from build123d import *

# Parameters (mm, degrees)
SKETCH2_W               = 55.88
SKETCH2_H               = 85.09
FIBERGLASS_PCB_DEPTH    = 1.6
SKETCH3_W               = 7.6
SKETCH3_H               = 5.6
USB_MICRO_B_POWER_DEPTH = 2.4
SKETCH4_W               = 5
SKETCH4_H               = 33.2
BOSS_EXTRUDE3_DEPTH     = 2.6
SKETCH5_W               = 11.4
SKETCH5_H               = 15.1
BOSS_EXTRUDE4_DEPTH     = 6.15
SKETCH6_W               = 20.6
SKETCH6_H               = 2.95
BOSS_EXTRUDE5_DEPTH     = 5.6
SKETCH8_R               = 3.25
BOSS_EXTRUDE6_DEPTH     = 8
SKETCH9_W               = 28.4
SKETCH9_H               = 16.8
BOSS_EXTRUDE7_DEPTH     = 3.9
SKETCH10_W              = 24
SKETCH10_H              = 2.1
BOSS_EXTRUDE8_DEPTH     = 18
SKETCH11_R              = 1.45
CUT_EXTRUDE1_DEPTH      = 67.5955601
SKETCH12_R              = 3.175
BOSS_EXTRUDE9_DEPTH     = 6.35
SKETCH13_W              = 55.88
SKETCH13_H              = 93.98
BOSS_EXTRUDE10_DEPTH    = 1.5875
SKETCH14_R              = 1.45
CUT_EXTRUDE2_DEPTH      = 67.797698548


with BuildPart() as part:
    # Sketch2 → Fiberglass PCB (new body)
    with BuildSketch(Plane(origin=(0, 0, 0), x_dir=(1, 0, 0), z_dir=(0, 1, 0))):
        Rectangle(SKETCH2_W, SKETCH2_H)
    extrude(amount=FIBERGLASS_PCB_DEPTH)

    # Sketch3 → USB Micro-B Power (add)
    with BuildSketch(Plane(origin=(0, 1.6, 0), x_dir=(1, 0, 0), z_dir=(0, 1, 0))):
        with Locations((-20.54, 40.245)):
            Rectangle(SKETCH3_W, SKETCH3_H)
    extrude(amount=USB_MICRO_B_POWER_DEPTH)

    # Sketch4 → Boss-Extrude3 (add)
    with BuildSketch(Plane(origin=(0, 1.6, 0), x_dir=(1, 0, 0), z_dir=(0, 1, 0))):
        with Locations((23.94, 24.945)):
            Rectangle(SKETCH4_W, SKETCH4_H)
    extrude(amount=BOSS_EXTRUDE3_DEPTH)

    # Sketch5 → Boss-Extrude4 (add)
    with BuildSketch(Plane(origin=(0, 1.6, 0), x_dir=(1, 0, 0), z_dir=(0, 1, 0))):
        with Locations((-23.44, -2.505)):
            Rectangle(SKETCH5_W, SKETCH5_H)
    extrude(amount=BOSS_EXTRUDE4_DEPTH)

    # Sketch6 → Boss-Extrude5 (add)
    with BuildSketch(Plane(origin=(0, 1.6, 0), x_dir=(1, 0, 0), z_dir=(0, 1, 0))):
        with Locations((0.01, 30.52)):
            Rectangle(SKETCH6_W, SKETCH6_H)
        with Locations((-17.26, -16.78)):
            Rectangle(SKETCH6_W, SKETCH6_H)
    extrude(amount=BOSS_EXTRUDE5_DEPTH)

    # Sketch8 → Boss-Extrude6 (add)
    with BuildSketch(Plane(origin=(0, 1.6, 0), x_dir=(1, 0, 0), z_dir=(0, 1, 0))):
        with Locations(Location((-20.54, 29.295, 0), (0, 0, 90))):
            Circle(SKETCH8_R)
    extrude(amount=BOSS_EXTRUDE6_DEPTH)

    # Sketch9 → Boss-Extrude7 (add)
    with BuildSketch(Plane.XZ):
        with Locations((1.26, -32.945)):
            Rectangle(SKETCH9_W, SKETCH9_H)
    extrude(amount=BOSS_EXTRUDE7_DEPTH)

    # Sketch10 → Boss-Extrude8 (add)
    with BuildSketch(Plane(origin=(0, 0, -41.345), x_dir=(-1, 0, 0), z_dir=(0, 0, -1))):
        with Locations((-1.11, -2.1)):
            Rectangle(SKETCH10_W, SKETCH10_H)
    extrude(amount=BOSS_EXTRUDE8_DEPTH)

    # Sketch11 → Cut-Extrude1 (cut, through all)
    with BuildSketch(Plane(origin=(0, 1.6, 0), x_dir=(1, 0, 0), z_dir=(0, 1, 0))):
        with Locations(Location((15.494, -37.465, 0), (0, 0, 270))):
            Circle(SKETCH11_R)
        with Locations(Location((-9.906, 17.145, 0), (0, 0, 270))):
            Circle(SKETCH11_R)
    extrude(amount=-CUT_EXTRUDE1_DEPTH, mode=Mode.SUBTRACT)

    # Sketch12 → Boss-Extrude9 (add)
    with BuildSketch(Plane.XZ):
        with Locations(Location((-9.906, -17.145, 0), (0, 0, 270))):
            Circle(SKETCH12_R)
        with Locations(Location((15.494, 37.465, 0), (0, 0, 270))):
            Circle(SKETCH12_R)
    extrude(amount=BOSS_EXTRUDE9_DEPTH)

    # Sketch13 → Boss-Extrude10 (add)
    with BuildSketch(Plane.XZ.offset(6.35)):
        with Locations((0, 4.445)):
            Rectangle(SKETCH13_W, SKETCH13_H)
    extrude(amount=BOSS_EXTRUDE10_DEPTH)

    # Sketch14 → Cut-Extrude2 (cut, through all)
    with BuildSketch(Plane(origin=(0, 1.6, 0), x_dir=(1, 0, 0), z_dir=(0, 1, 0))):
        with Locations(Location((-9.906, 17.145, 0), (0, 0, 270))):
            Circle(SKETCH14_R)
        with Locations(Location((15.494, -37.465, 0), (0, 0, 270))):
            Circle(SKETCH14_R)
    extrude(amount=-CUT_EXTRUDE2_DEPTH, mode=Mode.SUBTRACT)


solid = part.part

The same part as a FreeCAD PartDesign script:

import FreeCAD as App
import Part
import Sketcher

V = App.Vector

doc = App.newDocument("Part")
body = doc.addObject("PartDesign::Body", "Body")

# Sketch on XZ plane
sketch1 = body.newObject("Sketcher::SketchObject", "Sketch")
sketch1.AttachmentSupport = (doc.getObject("XZ_Plane"), [""])
sketch1.MapMode = "FlatFace"
sketch1.addGeometry([
    Part.LineSegment(V(-28, -43, 0), V(-28, 43, 0)),
    Part.LineSegment(V(-28, 43, 0), V(28, 43, 0)),
    Part.LineSegment(V(28, 43, 0), V(28, -43, 0)),
    Part.LineSegment(V(28, -43, 0), V(-28, -43, 0)),
], False)
sketch1.addConstraint([
    Sketcher.Constraint("Coincident", 0, 2, 1, 1),
    Sketcher.Constraint("Coincident", 1, 2, 2, 1),
    Sketcher.Constraint("Coincident", 2, 2, 3, 1),
    Sketcher.Constraint("Coincident", 3, 2, 0, 1),
    Sketcher.Constraint("Vertical", 0),
    Sketcher.Constraint("Horizontal", 1),
    Sketcher.Constraint("Vertical", 2),
    Sketcher.Constraint("Horizontal", 3),
    Sketcher.Constraint("Symmetric", 0, 2, 2, 2, -1, 1),
    Sketcher.Constraint("DistanceX", 1, 1, 1, 2, 55.88),
    Sketcher.Constraint("DistanceY", 0, 1, 0, 2, 85.09),
])
pad1 = body.newObject("PartDesign::Pad", "Pad")
pad1.Profile = sketch1
pad1.Length = 1.6
pad1.Reversed = True

# Sketch on XZ plane
sketch2 = body.newObject("Sketcher::SketchObject", "Sketch001")
sketch2.AttachmentSupport = (doc.getObject("XZ_Plane"), [""])
sketch2.MapMode = "FlatFace"
sketch2.AttachmentOffset = App.Placement(V(0, 0, -1.6), App.Rotation())
sketch2.addGeometry([
    Part.LineSegment(V(-24, -43, 0), V(-24, -37, 0)),
    Part.LineSegment(V(-24, -37, 0), V(-17, -37, 0)),
    Part.LineSegment(V(-17, -37, 0), V(-17, -43, 0)),
    Part.LineSegment(V(-17, -43, 0), V(-24, -43, 0)),
], False)
sketch2.addConstraint([
    Sketcher.Constraint("Coincident", 0, 2, 1, 1),
    Sketcher.Constraint("Coincident", 1, 2, 2, 1),
    Sketcher.Constraint("Coincident", 2, 2, 3, 1),
    Sketcher.Constraint("Coincident", 3, 2, 0, 1),
    Sketcher.Constraint("Vertical", 0),
    Sketcher.Constraint("Horizontal", 1),
    Sketcher.Constraint("Vertical", 2),
    Sketcher.Constraint("Horizontal", 3),
    Sketcher.Constraint("DistanceX", 1, 1, 1, 2, 7.6),
    Sketcher.Constraint("DistanceY", 0, 1, 0, 2, 5.6),
    Sketcher.Constraint("DistanceX", 0, 2, -1, 1, 24.34),
    Sketcher.Constraint("DistanceY", 0, 2, -1, 1, 37.445),
])
pad2 = body.newObject("PartDesign::Pad", "Pad001")
pad2.Profile = sketch2
pad2.Length = 2.4
pad2.Reversed = True

# Sketch on XZ plane
sketch3 = body.newObject("Sketcher::SketchObject", "Sketch002")
sketch3.AttachmentSupport = (doc.getObject("XZ_Plane"), [""])
sketch3.MapMode = "FlatFace"
sketch3.AttachmentOffset = App.Placement(V(0, 0, -1.6), App.Rotation())
sketch3.addGeometry([
    Part.LineSegment(V(21, -42, 0), V(21, -8, 0)),
    Part.LineSegment(V(21, -8, 0), V(26, -8, 0)),
    Part.LineSegment(V(26, -8, 0), V(26, -42, 0)),
    Part.LineSegment(V(26, -42, 0), V(21, -42, 0)),
], False)
sketch3.addConstraint([
    Sketcher.Constraint("Coincident", 0, 2, 1, 1),
    Sketcher.Constraint("Coincident", 1, 2, 2, 1),
    Sketcher.Constraint("Coincident", 2, 2, 3, 1),
    Sketcher.Constraint("Coincident", 3, 2, 0, 1),
    Sketcher.Constraint("Vertical", 0),
    Sketcher.Constraint("Horizontal", 1),
    Sketcher.Constraint("Vertical", 2),
    Sketcher.Constraint("Horizontal", 3),
    Sketcher.Constraint("DistanceX", 1, 1, 1, 2, 5.0),
    Sketcher.Constraint("DistanceY", 0, 1, 0, 2, 33.2),
    Sketcher.Constraint("DistanceX", -1, 1, 0, 2, 21.44),
    Sketcher.Constraint("DistanceY", 0, 2, -1, 1, 8.345),
])
pad3 = body.newObject("PartDesign::Pad", "Pad002")
pad3.Profile = sketch3
pad3.Length = 2.6
pad3.Reversed = True

# Sketch on XZ plane
sketch4 = body.newObject("Sketcher::SketchObject", "Sketch003")
sketch4.AttachmentSupport = (doc.getObject("XZ_Plane"), [""])
sketch4.MapMode = "FlatFace"
sketch4.AttachmentOffset = App.Placement(V(0, 0, -1.6), App.Rotation())
sketch4.addGeometry([
    Part.LineSegment(V(-29, -5, 0), V(-29, 10, 0)),
    Part.LineSegment(V(-29, 10, 0), V(-18, 10, 0)),
    Part.LineSegment(V(-18, 10, 0), V(-18, -5, 0)),
    Part.LineSegment(V(-18, -5, 0), V(-29, -5, 0)),
], False)
sketch4.addConstraint([
    Sketcher.Constraint("Coincident", 0, 2, 1, 1),
    Sketcher.Constraint("Coincident", 1, 2, 2, 1),
    Sketcher.Constraint("Coincident", 2, 2, 3, 1),
    Sketcher.Constraint("Coincident", 3, 2, 0, 1),
    Sketcher.Constraint("Vertical", 0),
    Sketcher.Constraint("Horizontal", 1),
    Sketcher.Constraint("Vertical", 2),
    Sketcher.Constraint("Horizontal", 3),
    Sketcher.Constraint("DistanceX", 1, 1, 1, 2, 11.4),
    Sketcher.Constraint("DistanceY", 0, 1, 0, 2, 15.1),
    Sketcher.Constraint("DistanceX", 0, 2, -1, 1, 29.14),
    Sketcher.Constraint("DistanceY", -1, 1, 0, 2, 10.055),
])
pad4 = body.newObject("PartDesign::Pad", "Pad003")
pad4.Profile = sketch4
pad4.Length = 6.15
pad4.Reversed = True

# Sketch on XZ plane
sketch5 = body.newObject("Sketcher::SketchObject", "Sketch004")
sketch5.AttachmentSupport = (doc.getObject("XZ_Plane"), [""])
sketch5.MapMode = "FlatFace"
sketch5.AttachmentOffset = App.Placement(V(0, 0, -1.6), App.Rotation())
sketch5.addGeometry([
    Part.LineSegment(V(-10.3, -32, 0), V(-10.3, -29, 0)),  # 0
    Part.LineSegment(V(-10.3, -29, 0), V(10.3, -29, 0)),  # 1
    Part.LineSegment(V(10.3, -29, 0), V(10.3, -32, 0)),  # 2
    Part.LineSegment(V(10.3, -32, 0), V(-10.3, -32, 0)),  # 3
    Part.LineSegment(V(-27.6, 15.3, 0), V(-27.6, 18.3, 0)),  # 4
    Part.LineSegment(V(-27.6, 18.3, 0), V(-7, 18.3, 0)),  # 5
    Part.LineSegment(V(-7, 18.3, 0), V(-7, 15.3, 0)),  # 6
    Part.LineSegment(V(-7, 15.3, 0), V(-27.6, 15.3, 0)),  # 7
], False)
sketch5.addConstraint([
    Sketcher.Constraint("Coincident", 0, 2, 1, 1),
    Sketcher.Constraint("Coincident", 1, 2, 2, 1),
    Sketcher.Constraint("Coincident", 2, 2, 3, 1),
    Sketcher.Constraint("Coincident", 3, 2, 0, 1),
    Sketcher.Constraint("Coincident", 4, 2, 5, 1),
    Sketcher.Constraint("Coincident", 5, 2, 6, 1),
    Sketcher.Constraint("Coincident", 6, 2, 7, 1),
    Sketcher.Constraint("Coincident", 7, 2, 4, 1),
    Sketcher.Constraint("Vertical", 0),
    Sketcher.Constraint("Horizontal", 1),
    Sketcher.Constraint("Vertical", 2),
    Sketcher.Constraint("Horizontal", 3),
    Sketcher.Constraint("Vertical", 4),
    Sketcher.Constraint("Horizontal", 5),
    Sketcher.Constraint("Vertical", 6),
    Sketcher.Constraint("Horizontal", 7),
    Sketcher.Constraint("Equal", 3, 5),
    Sketcher.Constraint("Equal", 2, 4),
    Sketcher.Constraint("DistanceX", 1, 1, 1, 2, 20.6),
    Sketcher.Constraint("DistanceY", 0, 1, 0, 2, 2.95),
    Sketcher.Constraint("DistanceY", 0, 2, 4, 2, 47.3),
    Sketcher.Constraint("DistanceX", 0, 2, -1, 1, 10.29),
    Sketcher.Constraint("DistanceX", 4, 2, -1, 1, 27.56),
    Sketcher.Constraint("DistanceY", 0, 2, -1, 1, 29.045),
])
pad5 = body.newObject("PartDesign::Pad", "Pad004")
pad5.Profile = sketch5
pad5.Length = 5.6
pad5.Reversed = True

# Sketch on XZ plane
sketch6 = body.newObject("Sketcher::SketchObject", "Sketch005")
sketch6.AttachmentSupport = (doc.getObject("XZ_Plane"), [""])
sketch6.MapMode = "FlatFace"
sketch6.AttachmentOffset = App.Placement(V(0, 0, -1.6), App.Rotation())
sketch6.addGeometry(Part.Circle(V(-20.5, -29.3, 0), V(0, 0, 1), 3.2), False)
sketch6.addConstraint([
    Sketcher.Constraint("Diameter", 0, 6.5),
    Sketcher.Constraint("DistanceX", 0, 3, -1, 1, 20.54),
    Sketcher.Constraint("DistanceY", 0, 3, -1, 1, 29.295),
])
pad6 = body.newObject("PartDesign::Pad", "Pad005")
pad6.Profile = sketch6
pad6.Length = 8
pad6.Reversed = True

# Sketch on XZ plane
sketch7 = body.newObject("Sketcher::SketchObject", "Sketch006")
sketch7.AttachmentSupport = (doc.getObject("XZ_Plane"), [""])
sketch7.MapMode = "FlatFace"
sketch7.addGeometry([
    Part.LineSegment(V(-13, -25, 0), V(-13, -41, 0)),
    Part.LineSegment(V(-13, -41, 0), V(15, -41, 0)),
    Part.LineSegment(V(15, -41, 0), V(15, -25, 0)),
    Part.LineSegment(V(15, -25, 0), V(-13, -25, 0)),
], False)
sketch7.addConstraint([
    Sketcher.Constraint("Coincident", 0, 2, 1, 1),
    Sketcher.Constraint("Coincident", 1, 2, 2, 1),
    Sketcher.Constraint("Coincident", 2, 2, 3, 1),
    Sketcher.Constraint("Coincident", 3, 2, 0, 1),
    Sketcher.Constraint("Vertical", 0),
    Sketcher.Constraint("Horizontal", 1),
    Sketcher.Constraint("Vertical", 2),
    Sketcher.Constraint("Horizontal", 3),
    Sketcher.Constraint("DistanceX", 1, 1, 1, 2, 28.4),
    Sketcher.Constraint("DistanceY", 0, 2, 0, 1, 16.8),
    Sketcher.Constraint("DistanceX", 0, 2, -1, 1, 12.94),
    Sketcher.Constraint("DistanceY", 0, 2, -1, 1, 41.345),
])
pad7 = body.newObject("PartDesign::Pad", "Pad006")
pad7.Profile = sketch7
pad7.Length = 3.9

# Sketch on XY plane
sketch8 = body.newObject("Sketcher::SketchObject", "Sketch007")
sketch8.AttachmentSupport = (doc.getObject("XY_Plane"), [""])
sketch8.MapMode = "FlatFace"
sketch8.AttachmentOffset = App.Placement(V(0, 0, -41.345), App.Rotation())
sketch8.addGeometry([
    Part.LineSegment(V(13.1, -1.1, 0), V(13.1, -3.1, 0)),
    Part.LineSegment(V(13.1, -3.1, 0), V(-10.9, -3.1, 0)),
    Part.LineSegment(V(-10.9, -3.1, 0), V(-10.9, -1.1, 0)),
    Part.LineSegment(V(-10.9, -1.1, 0), V(13.1, -1.1, 0)),
], False)
sketch8.addConstraint([
    Sketcher.Constraint("Coincident", 0, 2, 1, 1),
    Sketcher.Constraint("Coincident", 1, 2, 2, 1),
    Sketcher.Constraint("Coincident", 2, 2, 3, 1),
    Sketcher.Constraint("Coincident", 3, 2, 0, 1),
    Sketcher.Constraint("Vertical", 0),
    Sketcher.Constraint("Horizontal", 1),
    Sketcher.Constraint("Vertical", 2),
    Sketcher.Constraint("Horizontal", 3),
    Sketcher.Constraint("DistanceX", 1, 2, 1, 1, 24.0),
    Sketcher.Constraint("DistanceY", 0, 2, 0, 1, 2.1),
    Sketcher.Constraint("DistanceX", -1, 1, 0, 2, 13.11),
    Sketcher.Constraint("DistanceY", 0, 2, -1, 1, 3.15),
])
pad8 = body.newObject("PartDesign::Pad", "Pad007")
pad8.Profile = sketch8
pad8.Length = 18
pad8.Reversed = True

# Sketch on XZ plane
sketch9 = body.newObject("Sketcher::SketchObject", "Sketch008")
sketch9.AttachmentSupport = (doc.getObject("XZ_Plane"), [""])
sketch9.MapMode = "FlatFace"
sketch9.AttachmentOffset = App.Placement(V(0, 0, -1.6), App.Rotation())
sketch9.addGeometry([
    Part.Circle(V(15.5, 37.5, 0), V(0, 0, 1), 1.4),
    Part.Circle(V(-9.9, -17.1, 0), V(0, 0, 1), 1.4),
], False)
sketch9.addConstraint([
    Sketcher.Constraint("Equal", 0, 1),
    Sketcher.Constraint("Diameter", 0, 2.9),
    Sketcher.Constraint("DistanceX", 1, 3, 0, 3, 25.4),
    Sketcher.Constraint("DistanceY", 1, 3, 0, 3, 54.61),
    Sketcher.Constraint("DistanceX", -1, 1, 0, 3, 15.494),
    Sketcher.Constraint("DistanceY", -1, 1, 0, 3, 37.465),
])
pocket1 = body.newObject("PartDesign::Pocket", "Pocket")
pocket1.Profile = sketch9
pocket1.Type = "ThroughAll"
pocket1.Reversed = True

# Sketch on XZ plane
sketch10 = body.newObject("Sketcher::SketchObject", "Sketch009")
sketch10.AttachmentSupport = (doc.getObject("XZ_Plane"), [""])
sketch10.MapMode = "FlatFace"
sketch10.addGeometry([
    Part.Circle(V(-9.9, -17.1, 0), V(0, 0, 1), 3.2),
    Part.Circle(V(15.5, 37.5, 0), V(0, 0, 1), 3.2),
], False)
sketch10.addConstraint([
    Sketcher.Constraint("Equal", 0, 1),
    Sketcher.Constraint("Diameter", 0, 6.35),
    Sketcher.Constraint("DistanceX", 0, 3, 1, 3, 25.4),
    Sketcher.Constraint("DistanceY", 0, 3, 1, 3, 54.61),
    Sketcher.Constraint("DistanceX", 0, 3, -1, 1, 9.906),
    Sketcher.Constraint("DistanceY", 0, 3, -1, 1, 17.145),
])
pad9 = body.newObject("PartDesign::Pad", "Pad008")
pad9.Profile = sketch10
pad9.Length = 6.35

# Sketch on XZ plane
sketch11 = body.newObject("Sketcher::SketchObject", "Sketch010")
sketch11.AttachmentSupport = (doc.getObject("XZ_Plane"), [""])
sketch11.MapMode = "FlatFace"
sketch11.AttachmentOffset = App.Placement(V(0, 0, 6.35), App.Rotation())
sketch11.addGeometry([
    Part.LineSegment(V(-28, 51, 0), V(-28, -43, 0)),
    Part.LineSegment(V(-28, -43, 0), V(28, -43, 0)),
    Part.LineSegment(V(28, -43, 0), V(28, 51, 0)),
    Part.LineSegment(V(28, 51, 0), V(-28, 51, 0)),
], False)
sketch11.addConstraint([
    Sketcher.Constraint("Coincident", 0, 2, 1, 1),
    Sketcher.Constraint("Coincident", 1, 2, 2, 1),
    Sketcher.Constraint("Coincident", 2, 2, 3, 1),
    Sketcher.Constraint("Coincident", 3, 2, 0, 1),
    Sketcher.Constraint("Vertical", 0),
    Sketcher.Constraint("Horizontal", 1),
    Sketcher.Constraint("Vertical", 2),
    Sketcher.Constraint("Horizontal", 3),
    Sketcher.Constraint("DistanceX", 1, 1, 1, 2, 55.88),
    Sketcher.Constraint("DistanceY", 0, 2, 0, 1, 93.98),
    Sketcher.Constraint("DistanceX", 0, 2, -1, 1, 27.94),
    Sketcher.Constraint("DistanceY", 0, 2, -1, 1, 42.545),
])
pad10 = body.newObject("PartDesign::Pad", "Pad009")
pad10.Profile = sketch11
pad10.Length = 1.5875

# Sketch on XZ plane
sketch12 = body.newObject("Sketcher::SketchObject", "Sketch011")
sketch12.AttachmentSupport = (doc.getObject("XZ_Plane"), [""])
sketch12.MapMode = "FlatFace"
sketch12.AttachmentOffset = App.Placement(V(0, 0, -1.6), App.Rotation())
sketch12.addGeometry([
    Part.Circle(V(-9.9, -17.1, 0), V(0, 0, 1), 1.4),
    Part.Circle(V(15.5, 37.5, 0), V(0, 0, 1), 1.4),
], False)
sketch12.addConstraint([
    Sketcher.Constraint("Equal", 0, 1),
    Sketcher.Constraint("Diameter", 0, 2.9),
    Sketcher.Constraint("DistanceX", 0, 3, 1, 3, 25.4),
    Sketcher.Constraint("DistanceY", 0, 3, 1, 3, 54.61),
    Sketcher.Constraint("DistanceX", 0, 3, -1, 1, 9.906),
    Sketcher.Constraint("DistanceY", 0, 3, -1, 1, 17.145),
])
pocket2 = body.newObject("PartDesign::Pocket", "Pocket001")
pocket2.Profile = sketch12
pocket2.Type = "ThroughAll"
pocket2.Reversed = True

doc.recompute()
